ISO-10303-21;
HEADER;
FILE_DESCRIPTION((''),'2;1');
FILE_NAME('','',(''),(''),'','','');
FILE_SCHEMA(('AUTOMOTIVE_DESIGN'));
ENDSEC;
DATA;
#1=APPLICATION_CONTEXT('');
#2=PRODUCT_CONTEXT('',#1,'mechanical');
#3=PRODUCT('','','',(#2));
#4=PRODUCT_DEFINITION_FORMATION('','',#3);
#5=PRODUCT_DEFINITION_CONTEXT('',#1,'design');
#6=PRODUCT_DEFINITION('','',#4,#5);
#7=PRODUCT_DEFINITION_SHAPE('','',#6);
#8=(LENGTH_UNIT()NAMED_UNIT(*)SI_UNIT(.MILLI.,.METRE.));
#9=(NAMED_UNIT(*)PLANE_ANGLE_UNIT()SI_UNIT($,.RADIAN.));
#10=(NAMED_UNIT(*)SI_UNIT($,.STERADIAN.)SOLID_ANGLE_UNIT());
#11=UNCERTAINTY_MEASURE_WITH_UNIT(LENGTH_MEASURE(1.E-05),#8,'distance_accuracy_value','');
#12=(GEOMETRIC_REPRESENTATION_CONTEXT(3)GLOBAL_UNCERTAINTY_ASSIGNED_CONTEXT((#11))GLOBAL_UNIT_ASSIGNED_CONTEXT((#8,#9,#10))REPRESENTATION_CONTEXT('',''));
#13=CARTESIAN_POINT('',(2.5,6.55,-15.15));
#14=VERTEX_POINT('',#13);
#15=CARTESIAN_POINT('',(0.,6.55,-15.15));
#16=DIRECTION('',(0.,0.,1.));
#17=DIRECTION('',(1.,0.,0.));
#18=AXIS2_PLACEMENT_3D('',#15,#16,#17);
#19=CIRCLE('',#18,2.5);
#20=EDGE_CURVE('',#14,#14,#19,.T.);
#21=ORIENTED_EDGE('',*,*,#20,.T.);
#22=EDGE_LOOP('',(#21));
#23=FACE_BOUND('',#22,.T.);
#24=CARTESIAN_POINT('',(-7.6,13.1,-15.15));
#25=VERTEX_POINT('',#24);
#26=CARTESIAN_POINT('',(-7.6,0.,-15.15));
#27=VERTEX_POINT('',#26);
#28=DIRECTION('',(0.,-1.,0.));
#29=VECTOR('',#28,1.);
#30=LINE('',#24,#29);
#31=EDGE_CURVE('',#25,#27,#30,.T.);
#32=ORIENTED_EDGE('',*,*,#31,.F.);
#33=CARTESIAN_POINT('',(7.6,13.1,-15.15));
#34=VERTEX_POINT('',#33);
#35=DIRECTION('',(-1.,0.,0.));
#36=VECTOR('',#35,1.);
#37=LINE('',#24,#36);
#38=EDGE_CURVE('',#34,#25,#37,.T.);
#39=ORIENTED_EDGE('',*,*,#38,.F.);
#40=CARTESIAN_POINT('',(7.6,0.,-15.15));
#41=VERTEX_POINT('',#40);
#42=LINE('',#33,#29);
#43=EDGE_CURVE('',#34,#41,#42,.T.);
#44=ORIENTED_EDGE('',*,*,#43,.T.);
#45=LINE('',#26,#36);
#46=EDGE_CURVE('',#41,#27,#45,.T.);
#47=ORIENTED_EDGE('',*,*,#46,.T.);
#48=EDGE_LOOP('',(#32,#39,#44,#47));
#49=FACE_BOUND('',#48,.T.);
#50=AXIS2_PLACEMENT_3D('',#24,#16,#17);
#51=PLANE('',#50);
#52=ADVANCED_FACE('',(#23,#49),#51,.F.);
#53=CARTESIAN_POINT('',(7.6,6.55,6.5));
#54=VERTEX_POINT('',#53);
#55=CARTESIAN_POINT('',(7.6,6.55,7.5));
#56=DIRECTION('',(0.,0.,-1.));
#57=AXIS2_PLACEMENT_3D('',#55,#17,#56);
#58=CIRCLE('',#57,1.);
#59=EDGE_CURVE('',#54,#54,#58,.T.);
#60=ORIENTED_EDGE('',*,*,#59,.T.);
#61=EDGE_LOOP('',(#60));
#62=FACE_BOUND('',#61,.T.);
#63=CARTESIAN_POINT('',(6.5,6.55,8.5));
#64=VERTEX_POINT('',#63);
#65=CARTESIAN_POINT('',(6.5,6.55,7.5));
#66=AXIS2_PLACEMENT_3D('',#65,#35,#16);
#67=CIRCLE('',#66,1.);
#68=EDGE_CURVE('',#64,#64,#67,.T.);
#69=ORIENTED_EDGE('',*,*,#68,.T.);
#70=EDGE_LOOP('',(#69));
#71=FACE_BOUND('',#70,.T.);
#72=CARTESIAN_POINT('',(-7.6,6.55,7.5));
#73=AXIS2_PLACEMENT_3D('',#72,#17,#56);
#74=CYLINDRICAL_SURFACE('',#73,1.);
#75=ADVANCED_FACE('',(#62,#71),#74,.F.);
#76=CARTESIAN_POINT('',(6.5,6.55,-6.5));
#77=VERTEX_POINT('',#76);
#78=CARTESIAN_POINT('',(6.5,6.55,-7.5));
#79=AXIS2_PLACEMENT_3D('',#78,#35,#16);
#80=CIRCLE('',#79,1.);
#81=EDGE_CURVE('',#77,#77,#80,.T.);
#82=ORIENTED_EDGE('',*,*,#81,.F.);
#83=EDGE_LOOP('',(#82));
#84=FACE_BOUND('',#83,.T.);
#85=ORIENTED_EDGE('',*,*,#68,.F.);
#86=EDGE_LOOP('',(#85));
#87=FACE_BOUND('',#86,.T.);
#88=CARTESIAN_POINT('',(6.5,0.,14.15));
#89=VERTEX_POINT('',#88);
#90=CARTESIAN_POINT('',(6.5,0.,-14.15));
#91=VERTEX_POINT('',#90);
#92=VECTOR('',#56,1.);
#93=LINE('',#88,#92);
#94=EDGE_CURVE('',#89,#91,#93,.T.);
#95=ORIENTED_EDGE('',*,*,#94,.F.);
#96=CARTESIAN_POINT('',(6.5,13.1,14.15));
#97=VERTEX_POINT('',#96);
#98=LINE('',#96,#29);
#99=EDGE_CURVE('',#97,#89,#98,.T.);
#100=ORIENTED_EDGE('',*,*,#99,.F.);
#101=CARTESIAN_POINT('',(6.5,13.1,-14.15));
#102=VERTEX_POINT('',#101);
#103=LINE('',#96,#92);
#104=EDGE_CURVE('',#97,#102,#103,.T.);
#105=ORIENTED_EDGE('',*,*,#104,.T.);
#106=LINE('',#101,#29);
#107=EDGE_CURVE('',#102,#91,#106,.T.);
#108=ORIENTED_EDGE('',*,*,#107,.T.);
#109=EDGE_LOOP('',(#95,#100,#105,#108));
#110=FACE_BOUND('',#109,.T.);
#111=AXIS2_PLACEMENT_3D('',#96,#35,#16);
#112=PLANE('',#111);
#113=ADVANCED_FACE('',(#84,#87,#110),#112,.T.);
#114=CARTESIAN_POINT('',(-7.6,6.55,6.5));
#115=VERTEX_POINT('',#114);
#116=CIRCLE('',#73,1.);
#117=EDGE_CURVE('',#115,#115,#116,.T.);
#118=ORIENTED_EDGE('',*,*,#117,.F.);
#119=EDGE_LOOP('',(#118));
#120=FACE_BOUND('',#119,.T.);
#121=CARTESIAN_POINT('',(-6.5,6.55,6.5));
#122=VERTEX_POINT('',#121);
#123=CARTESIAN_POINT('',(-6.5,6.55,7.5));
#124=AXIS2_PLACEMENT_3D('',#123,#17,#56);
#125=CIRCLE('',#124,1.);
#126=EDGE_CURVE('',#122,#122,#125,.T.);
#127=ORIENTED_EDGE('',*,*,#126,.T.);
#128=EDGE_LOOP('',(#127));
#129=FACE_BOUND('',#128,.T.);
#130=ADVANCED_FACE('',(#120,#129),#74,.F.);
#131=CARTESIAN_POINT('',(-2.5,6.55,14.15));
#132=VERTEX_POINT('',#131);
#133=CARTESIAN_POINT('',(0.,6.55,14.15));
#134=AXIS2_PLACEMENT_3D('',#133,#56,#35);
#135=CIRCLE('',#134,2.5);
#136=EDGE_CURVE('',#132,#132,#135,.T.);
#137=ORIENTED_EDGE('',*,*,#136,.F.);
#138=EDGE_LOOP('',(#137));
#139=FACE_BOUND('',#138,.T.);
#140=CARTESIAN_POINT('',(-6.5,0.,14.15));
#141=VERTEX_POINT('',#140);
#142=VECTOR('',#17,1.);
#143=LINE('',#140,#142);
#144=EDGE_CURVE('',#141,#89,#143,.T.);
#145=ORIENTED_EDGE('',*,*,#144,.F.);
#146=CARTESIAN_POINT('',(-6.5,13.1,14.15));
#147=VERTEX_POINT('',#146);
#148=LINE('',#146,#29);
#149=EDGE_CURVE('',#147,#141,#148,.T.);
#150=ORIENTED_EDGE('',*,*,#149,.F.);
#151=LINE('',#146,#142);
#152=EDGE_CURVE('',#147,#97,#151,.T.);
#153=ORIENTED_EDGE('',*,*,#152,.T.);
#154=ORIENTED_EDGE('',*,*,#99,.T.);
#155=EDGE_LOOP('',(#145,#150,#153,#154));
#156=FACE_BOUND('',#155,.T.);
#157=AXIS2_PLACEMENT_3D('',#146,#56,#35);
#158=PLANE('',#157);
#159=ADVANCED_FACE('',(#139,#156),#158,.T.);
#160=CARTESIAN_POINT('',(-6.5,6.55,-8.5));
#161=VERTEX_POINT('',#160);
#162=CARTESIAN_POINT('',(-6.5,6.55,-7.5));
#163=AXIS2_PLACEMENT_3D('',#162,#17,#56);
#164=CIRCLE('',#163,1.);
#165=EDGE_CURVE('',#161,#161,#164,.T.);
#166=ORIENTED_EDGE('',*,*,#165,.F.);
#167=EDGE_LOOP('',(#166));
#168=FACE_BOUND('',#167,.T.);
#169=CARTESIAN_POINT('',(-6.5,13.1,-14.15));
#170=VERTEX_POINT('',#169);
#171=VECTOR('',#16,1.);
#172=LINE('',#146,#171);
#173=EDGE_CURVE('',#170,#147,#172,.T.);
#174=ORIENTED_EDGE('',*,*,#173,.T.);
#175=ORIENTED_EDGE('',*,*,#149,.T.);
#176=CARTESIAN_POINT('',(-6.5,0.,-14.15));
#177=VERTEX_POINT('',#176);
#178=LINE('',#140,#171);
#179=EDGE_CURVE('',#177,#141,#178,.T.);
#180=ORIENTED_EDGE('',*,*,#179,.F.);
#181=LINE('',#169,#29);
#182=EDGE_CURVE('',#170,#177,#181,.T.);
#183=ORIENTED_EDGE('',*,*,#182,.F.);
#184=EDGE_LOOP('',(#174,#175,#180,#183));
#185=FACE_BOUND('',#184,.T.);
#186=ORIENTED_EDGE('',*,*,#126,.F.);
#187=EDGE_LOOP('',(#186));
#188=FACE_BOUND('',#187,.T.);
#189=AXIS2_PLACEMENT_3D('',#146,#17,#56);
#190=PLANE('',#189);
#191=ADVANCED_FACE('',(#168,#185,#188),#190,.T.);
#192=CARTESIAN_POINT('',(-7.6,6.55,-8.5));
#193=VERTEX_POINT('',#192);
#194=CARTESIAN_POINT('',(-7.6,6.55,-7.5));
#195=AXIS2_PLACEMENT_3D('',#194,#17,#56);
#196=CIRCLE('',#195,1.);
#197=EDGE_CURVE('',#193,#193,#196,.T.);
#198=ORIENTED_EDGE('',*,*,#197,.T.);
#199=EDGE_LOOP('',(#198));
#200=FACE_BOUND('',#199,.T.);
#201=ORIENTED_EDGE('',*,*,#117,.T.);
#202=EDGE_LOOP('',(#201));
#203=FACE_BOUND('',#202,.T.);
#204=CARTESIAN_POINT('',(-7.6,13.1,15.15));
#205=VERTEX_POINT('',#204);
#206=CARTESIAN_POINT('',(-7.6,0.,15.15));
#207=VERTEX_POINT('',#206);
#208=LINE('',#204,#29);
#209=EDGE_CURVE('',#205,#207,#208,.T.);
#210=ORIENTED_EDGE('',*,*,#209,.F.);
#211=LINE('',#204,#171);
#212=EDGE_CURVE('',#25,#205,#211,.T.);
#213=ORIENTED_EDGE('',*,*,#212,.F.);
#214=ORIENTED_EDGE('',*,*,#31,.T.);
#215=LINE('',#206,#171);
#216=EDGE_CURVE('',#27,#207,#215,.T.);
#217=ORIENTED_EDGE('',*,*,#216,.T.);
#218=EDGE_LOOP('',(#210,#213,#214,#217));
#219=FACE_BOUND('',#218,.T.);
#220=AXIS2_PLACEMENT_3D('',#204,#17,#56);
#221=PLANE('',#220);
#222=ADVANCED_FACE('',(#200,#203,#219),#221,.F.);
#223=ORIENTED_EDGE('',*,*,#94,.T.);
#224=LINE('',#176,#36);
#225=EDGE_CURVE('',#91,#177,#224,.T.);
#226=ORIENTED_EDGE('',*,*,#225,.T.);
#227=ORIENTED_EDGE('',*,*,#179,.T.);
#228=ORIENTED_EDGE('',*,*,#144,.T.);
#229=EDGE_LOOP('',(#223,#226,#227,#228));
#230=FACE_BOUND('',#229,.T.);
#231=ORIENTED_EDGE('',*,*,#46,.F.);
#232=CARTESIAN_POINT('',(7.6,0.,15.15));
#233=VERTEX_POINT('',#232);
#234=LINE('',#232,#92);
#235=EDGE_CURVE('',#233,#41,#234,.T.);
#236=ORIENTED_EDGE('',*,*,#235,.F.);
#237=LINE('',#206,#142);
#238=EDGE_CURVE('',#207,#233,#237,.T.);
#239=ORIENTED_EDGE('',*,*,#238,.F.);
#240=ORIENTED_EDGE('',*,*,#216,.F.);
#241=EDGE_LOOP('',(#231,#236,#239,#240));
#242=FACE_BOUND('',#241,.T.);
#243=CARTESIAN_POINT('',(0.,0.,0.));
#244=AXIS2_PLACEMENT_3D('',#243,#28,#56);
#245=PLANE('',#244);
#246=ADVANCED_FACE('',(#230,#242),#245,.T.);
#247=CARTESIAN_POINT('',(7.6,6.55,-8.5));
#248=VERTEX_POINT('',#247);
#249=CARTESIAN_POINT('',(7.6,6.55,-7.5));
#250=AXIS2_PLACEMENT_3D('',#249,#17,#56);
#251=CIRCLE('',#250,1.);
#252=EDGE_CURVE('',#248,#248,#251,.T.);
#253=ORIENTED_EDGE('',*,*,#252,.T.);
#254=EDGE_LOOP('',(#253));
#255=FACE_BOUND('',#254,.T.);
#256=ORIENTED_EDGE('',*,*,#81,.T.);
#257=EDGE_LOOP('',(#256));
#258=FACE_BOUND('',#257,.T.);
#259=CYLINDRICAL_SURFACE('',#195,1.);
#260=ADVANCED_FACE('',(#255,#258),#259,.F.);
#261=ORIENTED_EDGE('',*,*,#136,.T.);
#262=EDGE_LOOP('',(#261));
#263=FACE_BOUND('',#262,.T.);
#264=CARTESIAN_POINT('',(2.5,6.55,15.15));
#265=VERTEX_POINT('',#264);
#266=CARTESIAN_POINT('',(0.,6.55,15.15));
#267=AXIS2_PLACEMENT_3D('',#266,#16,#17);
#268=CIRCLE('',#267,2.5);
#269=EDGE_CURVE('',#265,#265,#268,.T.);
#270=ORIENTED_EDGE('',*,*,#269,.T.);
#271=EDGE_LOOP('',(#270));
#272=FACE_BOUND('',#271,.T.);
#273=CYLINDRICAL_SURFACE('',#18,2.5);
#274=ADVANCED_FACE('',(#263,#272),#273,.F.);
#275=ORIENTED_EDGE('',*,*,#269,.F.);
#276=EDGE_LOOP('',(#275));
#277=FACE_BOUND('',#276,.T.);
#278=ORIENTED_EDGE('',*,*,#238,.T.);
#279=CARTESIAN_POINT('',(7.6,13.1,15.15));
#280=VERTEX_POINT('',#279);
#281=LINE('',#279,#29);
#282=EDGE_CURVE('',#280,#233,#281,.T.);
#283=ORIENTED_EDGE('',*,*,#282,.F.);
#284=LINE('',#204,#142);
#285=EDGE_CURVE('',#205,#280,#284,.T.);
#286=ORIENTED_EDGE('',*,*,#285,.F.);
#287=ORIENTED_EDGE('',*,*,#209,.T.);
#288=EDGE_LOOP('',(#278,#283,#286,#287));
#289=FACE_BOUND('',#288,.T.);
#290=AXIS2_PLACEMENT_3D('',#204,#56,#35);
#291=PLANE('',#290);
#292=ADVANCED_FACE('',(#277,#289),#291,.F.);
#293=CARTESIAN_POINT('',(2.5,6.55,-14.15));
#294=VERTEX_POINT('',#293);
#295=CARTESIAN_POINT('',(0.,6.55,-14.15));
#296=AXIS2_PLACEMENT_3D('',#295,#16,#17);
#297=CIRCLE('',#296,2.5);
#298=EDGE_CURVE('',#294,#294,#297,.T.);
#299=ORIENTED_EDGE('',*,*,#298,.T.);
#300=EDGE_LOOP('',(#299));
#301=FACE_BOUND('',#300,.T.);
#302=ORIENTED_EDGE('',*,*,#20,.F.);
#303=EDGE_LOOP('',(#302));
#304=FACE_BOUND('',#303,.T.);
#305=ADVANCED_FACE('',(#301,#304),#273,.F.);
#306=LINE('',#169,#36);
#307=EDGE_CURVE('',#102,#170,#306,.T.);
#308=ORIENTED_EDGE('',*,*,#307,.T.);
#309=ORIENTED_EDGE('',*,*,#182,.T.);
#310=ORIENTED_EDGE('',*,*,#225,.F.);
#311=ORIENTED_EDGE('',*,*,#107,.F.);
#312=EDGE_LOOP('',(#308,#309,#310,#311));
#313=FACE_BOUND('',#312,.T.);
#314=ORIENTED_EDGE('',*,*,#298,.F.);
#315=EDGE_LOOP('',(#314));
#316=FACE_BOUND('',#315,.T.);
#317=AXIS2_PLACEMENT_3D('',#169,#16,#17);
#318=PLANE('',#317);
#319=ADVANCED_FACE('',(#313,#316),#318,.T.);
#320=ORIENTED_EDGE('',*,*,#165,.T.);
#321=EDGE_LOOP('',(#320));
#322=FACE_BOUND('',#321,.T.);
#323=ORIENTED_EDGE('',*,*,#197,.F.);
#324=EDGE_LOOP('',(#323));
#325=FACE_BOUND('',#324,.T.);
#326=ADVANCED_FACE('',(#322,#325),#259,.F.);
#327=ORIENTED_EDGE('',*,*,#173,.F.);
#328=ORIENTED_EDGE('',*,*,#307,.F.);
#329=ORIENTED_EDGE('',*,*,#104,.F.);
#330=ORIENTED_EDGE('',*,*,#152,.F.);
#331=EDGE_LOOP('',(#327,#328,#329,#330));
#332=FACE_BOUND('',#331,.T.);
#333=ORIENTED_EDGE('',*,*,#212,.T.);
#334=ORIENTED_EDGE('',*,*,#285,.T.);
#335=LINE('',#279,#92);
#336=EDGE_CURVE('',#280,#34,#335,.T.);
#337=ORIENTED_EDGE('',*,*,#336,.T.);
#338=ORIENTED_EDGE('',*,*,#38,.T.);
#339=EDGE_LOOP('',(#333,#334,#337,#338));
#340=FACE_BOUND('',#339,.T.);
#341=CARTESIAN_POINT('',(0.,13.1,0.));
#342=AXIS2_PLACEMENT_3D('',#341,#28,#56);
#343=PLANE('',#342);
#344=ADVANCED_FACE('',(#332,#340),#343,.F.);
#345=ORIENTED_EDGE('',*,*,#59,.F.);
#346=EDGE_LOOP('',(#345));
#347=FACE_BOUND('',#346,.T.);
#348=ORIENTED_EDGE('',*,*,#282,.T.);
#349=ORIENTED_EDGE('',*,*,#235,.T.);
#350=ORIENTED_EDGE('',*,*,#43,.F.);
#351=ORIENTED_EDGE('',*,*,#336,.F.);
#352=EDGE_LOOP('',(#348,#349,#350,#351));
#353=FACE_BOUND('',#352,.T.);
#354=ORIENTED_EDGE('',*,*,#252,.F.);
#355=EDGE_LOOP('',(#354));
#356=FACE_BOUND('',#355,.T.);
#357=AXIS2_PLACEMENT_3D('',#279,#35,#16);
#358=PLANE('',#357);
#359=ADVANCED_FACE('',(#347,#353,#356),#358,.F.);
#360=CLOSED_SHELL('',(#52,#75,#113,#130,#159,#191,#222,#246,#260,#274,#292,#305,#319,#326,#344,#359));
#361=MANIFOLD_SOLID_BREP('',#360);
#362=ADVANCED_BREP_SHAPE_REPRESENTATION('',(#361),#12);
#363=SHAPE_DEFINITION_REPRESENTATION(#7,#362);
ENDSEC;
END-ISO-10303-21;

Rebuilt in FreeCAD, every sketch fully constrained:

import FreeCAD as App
import Part
import Sketcher
from FreeCAD import Vector


def add_polygon(sketch, points):
    """Adds a closed chain of lines whose ends are joined by coincident constraints."""
    first, n = sketch.GeometryCount, len(points)
    for a, b in zip(points, points[1:] + points[:1]):
        sketch.addGeometry(Part.LineSegment(App.Vector(*a, 0), App.Vector(*b, 0)), False)
    for i in range(n):
        sketch.addConstraint(Sketcher.Constraint("Coincident", first + i, 2, first + (i + 1) % n, 1))

doc = App.newDocument("Part")
params = doc.addObject("Spreadsheet::Sheet", "Params")
for row, (alias, value) in enumerate([
    ("sketch1_width", "13 mm"),
    ("sketch1_width2", "15.2 mm"),
    ("sketch1_height", "30.3 mm"),
    ("sketch1_height2", "28.3 mm"),
    ("pad1_length", "13.1 mm"),
    ("sketch2_diameter", "2 mm"),
    ("sketch3_diameter", "5 mm"),
], start=1):
    params.set(f"A{row}", alias)
    params.set(f"B{row}", "=" + value)
    params.setAlias(f"B{row}", alias)

body = doc.addObject("PartDesign::Body", "Body")

# Sketch on XZ plane
sketch1 = body.newObject("Sketcher::SketchObject", "Sketch")
sketch1.AttachmentSupport = (doc.getObject("XZ_Plane"), [""])
sketch1.MapMode = "FlatFace"
add_polygon(sketch1, [(-8, -15), (-8, 15), (8, 15), (8, -15)])  # lines 0-3
add_polygon(sketch1, [(6, 14), (-6, 14), (-6, -14), (6, -14)])  # lines 4-7
sketch1.addConstraint(Sketcher.Constraint("Vertical", 0))
sketch1.addConstraint(Sketcher.Constraint("Horizontal", 1))
sketch1.addConstraint(Sketcher.Constraint("Vertical", 2))
sketch1.addConstraint(Sketcher.Constraint("Horizontal", 3))
sketch1.addConstraint(Sketcher.Constraint("Horizontal", 4))
sketch1.addConstraint(Sketcher.Constraint("Vertical", 5))
sketch1.addConstraint(Sketcher.Constraint("Horizontal", 6))
sketch1.addConstraint(Sketcher.Constraint("Vertical", 7))
sketch1.addConstraint(Sketcher.Constraint("Symmetric", 0, 2, 2, 2, -1, 1))
sketch1.addConstraint(Sketcher.Constraint("Symmetric", 4, 2, 6, 2, -1, 1))
sketch1.addConstraint(Sketcher.Constraint("DistanceX", 4, 2, 4, 1, 13.0))
sketch1.addConstraint(Sketcher.Constraint("DistanceX", 1, 1, 1, 2, 15.2))
sketch1.addConstraint(Sketcher.Constraint("DistanceY", 0, 1, 0, 2, 30.3))
sketch1.addConstraint(Sketcher.Constraint("DistanceY", 5, 2, 5, 1, 28.3))
sketch1.setExpression("Constraints[18]", "Params.sketch1_width")
sketch1.setExpression("Constraints[19]", "Params.sketch1_width2")
sketch1.setExpression("Constraints[20]", "Params.sketch1_height")
sketch1.setExpression("Constraints[21]", "Params.sketch1_height2")
pad1 = body.newObject("PartDesign::Pad", "Pad")
pad1.Profile = sketch1
pad1.setExpression("Length", "Params.pad1_length")
pad1.Reversed = True

# Sketch on YZ plane
sketch2 = body.newObject("Sketcher::SketchObject", "Sketch001")
sketch2.AttachmentSupport = (doc.getObject("YZ_Plane"), [""])
sketch2.MapMode = "FlatFace"
sketch2.AttachmentOffset = App.Placement(Vector(0, 0, 7.6), App.Rotation())
sketch2.addGeometry(Part.Circle(Vector(6.5, 7.5, 0), Vector(0, 0, 1), 1), False)
sketch2.addGeometry(Part.Circle(Vector(6.5, -7.5, 0), Vector(0, 0, 1), 1), False)
sketch2.addConstraint(Sketcher.Constraint("Equal", 0, 1))
sketch2.addConstraint(Sketcher.Constraint("Symmetric", 0, 3, 1, 3, -1))
sketch2.addConstraint(Sketcher.Constraint("Diameter", 0, 2.0))
sketch2.addConstraint(Sketcher.Constraint("DistanceY", 1, 3, 0, 3, 15.0))
sketch2.addConstraint(Sketcher.Constraint("DistanceX", -1, 1, 0, 3, 6.55))
sketch2.setExpression("Constraints[2]", "Params.sketch2_diameter")
pocket1 = body.newObject("PartDesign::Pocket", "Pocket")
pocket1.Profile = sketch2
pocket1.Type = "ThroughAll"

# Sketch on XY plane
sketch3 = body.newObject("Sketcher::SketchObject", "Sketch002")
sketch3.AttachmentSupport = (doc.getObject("XY_Plane"), [""])
sketch3.MapMode = "FlatFace"
sketch3.AttachmentOffset = App.Placement(Vector(0, 0, 15.15), App.Rotation())
sketch3.addGeometry(Part.Circle(Vector(0, 6.5, 0), Vector(0, 0, 1), 2.5), False)
sketch3.addConstraint(Sketcher.Constraint("PointOnObject", 0, 3, -2))
sketch3.addConstraint(Sketcher.Constraint("Diameter", 0, 5.0))
sketch3.addConstraint(Sketcher.Constraint("DistanceY", -1, 1, 0, 3, 6.55))
sketch3.setExpression("Constraints[1]", "Params.sketch3_diameter")
pocket2 = body.newObject("PartDesign::Pocket", "Pocket001")
pocket2.Profile = sketch3
pocket2.Type = "ThroughAll"

doc.recompute()
